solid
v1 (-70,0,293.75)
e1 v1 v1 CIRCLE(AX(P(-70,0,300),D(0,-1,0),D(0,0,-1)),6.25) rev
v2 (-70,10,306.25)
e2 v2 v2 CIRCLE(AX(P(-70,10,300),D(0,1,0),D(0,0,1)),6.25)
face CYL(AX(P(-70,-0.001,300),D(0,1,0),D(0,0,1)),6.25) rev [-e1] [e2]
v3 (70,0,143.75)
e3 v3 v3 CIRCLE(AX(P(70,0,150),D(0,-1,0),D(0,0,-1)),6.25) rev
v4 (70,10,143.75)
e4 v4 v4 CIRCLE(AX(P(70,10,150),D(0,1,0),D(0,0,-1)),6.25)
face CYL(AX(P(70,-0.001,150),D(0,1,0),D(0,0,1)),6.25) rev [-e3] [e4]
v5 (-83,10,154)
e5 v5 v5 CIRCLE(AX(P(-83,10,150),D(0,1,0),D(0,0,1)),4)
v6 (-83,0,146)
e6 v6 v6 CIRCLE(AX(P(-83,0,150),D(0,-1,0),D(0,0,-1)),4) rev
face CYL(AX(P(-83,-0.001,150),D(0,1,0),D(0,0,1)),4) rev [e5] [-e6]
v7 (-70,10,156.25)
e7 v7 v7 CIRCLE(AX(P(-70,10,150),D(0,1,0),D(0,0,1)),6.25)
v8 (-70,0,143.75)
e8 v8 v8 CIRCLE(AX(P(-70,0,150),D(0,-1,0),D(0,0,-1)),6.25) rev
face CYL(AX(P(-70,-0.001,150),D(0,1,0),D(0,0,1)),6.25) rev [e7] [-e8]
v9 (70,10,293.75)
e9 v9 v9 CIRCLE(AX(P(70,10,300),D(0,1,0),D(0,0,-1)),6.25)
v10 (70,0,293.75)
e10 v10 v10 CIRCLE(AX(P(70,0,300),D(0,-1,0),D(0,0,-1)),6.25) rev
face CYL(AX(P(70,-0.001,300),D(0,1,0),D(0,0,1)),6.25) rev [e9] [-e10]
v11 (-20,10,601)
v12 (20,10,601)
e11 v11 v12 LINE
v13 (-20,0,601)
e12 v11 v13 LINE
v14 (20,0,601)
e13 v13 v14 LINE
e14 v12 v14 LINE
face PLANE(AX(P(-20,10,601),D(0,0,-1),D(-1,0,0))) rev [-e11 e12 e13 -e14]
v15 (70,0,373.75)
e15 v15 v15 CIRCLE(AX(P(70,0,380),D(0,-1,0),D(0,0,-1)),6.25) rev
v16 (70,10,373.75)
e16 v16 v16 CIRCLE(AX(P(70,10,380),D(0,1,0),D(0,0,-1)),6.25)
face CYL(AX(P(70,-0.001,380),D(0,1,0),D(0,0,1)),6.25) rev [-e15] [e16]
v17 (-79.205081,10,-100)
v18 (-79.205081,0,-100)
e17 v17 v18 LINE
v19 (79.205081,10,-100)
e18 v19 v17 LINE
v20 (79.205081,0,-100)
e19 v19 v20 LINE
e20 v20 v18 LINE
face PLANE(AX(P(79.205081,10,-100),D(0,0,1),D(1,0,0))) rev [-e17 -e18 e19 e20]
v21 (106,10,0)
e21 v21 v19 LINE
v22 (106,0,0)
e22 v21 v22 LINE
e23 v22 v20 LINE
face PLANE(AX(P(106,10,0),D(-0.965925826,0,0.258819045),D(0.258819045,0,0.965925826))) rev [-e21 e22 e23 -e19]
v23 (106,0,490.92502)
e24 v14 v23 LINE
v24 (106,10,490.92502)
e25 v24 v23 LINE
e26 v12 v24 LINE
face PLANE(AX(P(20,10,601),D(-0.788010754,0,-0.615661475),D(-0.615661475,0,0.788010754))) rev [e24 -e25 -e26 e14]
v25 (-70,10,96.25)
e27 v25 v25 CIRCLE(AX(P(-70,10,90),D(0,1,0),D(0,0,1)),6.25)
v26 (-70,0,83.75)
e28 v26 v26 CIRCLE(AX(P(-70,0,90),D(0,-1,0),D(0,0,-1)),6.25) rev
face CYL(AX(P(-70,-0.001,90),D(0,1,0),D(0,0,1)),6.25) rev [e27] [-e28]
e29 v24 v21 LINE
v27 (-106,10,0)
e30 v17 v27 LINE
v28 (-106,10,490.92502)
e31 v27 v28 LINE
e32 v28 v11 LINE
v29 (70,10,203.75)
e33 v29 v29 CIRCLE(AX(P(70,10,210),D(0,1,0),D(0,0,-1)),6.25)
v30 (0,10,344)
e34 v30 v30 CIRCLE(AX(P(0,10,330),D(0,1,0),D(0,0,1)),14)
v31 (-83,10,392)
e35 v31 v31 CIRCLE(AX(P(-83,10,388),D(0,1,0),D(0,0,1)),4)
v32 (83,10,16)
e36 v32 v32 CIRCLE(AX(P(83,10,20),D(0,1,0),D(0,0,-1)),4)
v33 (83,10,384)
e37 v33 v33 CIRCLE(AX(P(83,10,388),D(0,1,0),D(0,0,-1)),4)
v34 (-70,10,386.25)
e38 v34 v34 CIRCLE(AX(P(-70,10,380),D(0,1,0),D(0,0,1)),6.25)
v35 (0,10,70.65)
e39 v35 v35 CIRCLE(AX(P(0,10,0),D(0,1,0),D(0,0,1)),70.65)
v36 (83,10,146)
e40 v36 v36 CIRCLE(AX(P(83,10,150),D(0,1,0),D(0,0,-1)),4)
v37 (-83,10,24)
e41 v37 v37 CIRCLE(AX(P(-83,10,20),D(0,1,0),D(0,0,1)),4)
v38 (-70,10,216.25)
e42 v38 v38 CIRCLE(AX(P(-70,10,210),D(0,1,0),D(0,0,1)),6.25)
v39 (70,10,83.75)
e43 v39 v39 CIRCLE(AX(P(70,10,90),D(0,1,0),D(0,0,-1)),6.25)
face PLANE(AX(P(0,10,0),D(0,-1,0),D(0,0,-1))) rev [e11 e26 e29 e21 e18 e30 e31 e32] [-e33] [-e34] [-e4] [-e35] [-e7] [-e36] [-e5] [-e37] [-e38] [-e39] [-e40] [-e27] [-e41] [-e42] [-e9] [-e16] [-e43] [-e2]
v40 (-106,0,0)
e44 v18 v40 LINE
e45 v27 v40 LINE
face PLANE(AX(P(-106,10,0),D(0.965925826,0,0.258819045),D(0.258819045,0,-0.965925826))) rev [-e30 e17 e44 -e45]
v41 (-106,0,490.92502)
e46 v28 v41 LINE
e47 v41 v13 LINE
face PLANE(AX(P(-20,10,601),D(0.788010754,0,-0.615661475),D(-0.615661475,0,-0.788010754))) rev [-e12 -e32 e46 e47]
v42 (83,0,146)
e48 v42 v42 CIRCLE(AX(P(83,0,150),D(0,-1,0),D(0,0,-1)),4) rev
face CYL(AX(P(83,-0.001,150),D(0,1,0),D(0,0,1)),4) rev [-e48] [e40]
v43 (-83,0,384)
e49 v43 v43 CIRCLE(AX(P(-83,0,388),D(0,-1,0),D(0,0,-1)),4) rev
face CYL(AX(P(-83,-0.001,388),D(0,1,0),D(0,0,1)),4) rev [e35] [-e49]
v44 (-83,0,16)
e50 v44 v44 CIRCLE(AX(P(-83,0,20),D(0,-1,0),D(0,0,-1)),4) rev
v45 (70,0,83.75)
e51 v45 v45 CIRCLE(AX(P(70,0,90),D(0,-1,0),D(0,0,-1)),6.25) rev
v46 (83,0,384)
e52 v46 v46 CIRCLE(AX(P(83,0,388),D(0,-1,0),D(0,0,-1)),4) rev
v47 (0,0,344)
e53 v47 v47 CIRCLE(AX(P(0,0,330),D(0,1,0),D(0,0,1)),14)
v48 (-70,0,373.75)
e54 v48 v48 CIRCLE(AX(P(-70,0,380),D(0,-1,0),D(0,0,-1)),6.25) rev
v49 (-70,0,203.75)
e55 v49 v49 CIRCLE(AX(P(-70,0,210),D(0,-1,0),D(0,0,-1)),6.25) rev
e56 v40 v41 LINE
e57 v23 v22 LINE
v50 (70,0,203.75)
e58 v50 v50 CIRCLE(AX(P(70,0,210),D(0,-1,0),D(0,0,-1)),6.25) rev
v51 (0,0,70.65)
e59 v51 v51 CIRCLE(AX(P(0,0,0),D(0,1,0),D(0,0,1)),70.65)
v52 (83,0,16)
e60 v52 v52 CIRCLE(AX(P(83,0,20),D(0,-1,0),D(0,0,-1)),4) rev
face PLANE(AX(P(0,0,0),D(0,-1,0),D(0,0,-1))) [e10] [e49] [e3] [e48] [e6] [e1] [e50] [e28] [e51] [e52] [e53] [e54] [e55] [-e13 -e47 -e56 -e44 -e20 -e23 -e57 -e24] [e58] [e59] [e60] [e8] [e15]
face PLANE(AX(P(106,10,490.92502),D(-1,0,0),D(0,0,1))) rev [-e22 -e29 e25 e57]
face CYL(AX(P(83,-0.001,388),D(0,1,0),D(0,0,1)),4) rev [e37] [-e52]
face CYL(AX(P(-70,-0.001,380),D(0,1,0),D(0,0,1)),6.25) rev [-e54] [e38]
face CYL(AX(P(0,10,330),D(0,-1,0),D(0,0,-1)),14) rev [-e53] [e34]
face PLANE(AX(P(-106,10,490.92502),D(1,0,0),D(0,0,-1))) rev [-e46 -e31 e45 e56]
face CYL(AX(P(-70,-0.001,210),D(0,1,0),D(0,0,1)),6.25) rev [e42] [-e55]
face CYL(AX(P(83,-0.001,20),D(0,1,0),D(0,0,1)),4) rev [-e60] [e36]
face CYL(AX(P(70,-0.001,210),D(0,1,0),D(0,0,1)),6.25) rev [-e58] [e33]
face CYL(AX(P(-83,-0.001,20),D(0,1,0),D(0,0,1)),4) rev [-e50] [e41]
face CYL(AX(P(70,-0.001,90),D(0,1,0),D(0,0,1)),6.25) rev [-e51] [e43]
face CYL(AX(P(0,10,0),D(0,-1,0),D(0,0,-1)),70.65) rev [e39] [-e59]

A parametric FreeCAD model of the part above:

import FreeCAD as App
import Part
import Sketcher

V = App.Vector
Q = App.Units.Quantity


def add_polygon(sketch, points):
    """Adds a closed chain of lines whose ends are joined by coincident constraints."""
    first, n = sketch.GeometryCount, len(points)
    for a, b in zip(points, points[1:] + points[:1]):
        sketch.addGeometry(Part.LineSegment(App.Vector(*a, 0), App.Vector(*b, 0)), False)
    for i in range(n):
        sketch.addConstraint(Sketcher.Constraint("Coincident", first + i, 2, first + (i + 1) % n, 1))

doc = App.newDocument("Part")
body = doc.addObject("PartDesign::Body", "Body")

# Sketch on XZ plane
sketch1 = body.newObject("Sketcher::SketchObject", "Sketch")
sketch1.AttachmentSupport = (doc.getObject("XZ_Plane"), [""])
sketch1.MapMode = "FlatFace"
add_polygon(sketch1, [(106, 490.92502), (106, 0), (79.205081, -100), (-79.205081, -100), (-106, 0), (-106, 490.92502), (-20, 601), (20, 601)])  # lines 0-7
sketch1.addGeometry(Part.Circle(V(0, 330, 0), V(0, 0, 1), 14), False)  # 8
sketch1.addGeometry(Part.Circle(V(0, 0, 0), V(0, 0, 1), 70.65), False)  # 9
sketch1.addConstraint(Sketcher.Constraint("Vertical", 0))
sketch1.addConstraint(Sketcher.Constraint("Horizontal", 2))
sketch1.addConstraint(Sketcher.Constraint("Vertical", 4))
sketch1.addConstraint(Sketcher.Constraint("Horizontal", 6))
sketch1.addConstraint(Sketcher.Constraint("Coincident", 9, 3, -1, 1))
sketch1.addConstraint(Sketcher.Constraint("Symmetric", 0, 2, 3, 2, -1, 1))
sketch1.addConstraint(Sketcher.Constraint("PointOnObject", 8, 3, -2))
sketch1.addConstraint(Sketcher.Constraint("PointOnObject", 0, 2, -1))
sketch1.addConstraint(Sketcher.Constraint("Horizontal", 4, 2, 7, 2))
sketch1.addConstraint(Sketcher.Constraint("Equal", 1, 3))
sketch1.addConstraint(Sketcher.Constraint("Equal", 5, 7))
sketch1.addConstraint(Sketcher.Constraint("Diameter", 8, 28.0))
sketch1.addConstraint(Sketcher.Constraint("Diameter", 9, 141.3))
sketch1.addConstraint(Sketcher.Constraint("DistanceX", 6, 1, 6, 2, 40.0))
sketch1.addConstraint(Sketcher.Constraint("Angle", 1, Q("-105 deg")))
sketch1.addConstraint(Sketcher.Constraint("Angle", 5, Q("52 deg")))
sketch1.addConstraint(Sketcher.Constraint("DistanceY", -1, 1, 8, 3, 330.0))
sketch1.addConstraint(Sketcher.Constraint("DistanceX", -1, 1, 0, 2, 106.0))
sketch1.addConstraint(Sketcher.Constraint("DistanceY", 1, 2, -1, 1, 100.0))
sketch1.addConstraint(Sketcher.Constraint("DistanceY", -1, 1, 5, 2, 601.0))
pad1 = body.newObject("PartDesign::Pad", "Pad")
pad1.Profile = sketch1
pad1.Length = 10
pad1.Reversed = True

# Sketch on XZ plane
sketch2 = body.newObject("Sketcher::SketchObject", "Sketch001")
sketch2.AttachmentSupport = (doc.getObject("XZ_Plane"), [""])
sketch2.MapMode = "FlatFace"
sketch2.AttachmentOffset = App.Placement(V(0, 0, -10), App.Rotation())
sketch2.addGeometry(Part.Circle(V(-83, 150, 0), V(0, 0, 1), 4), False)
sketch2.addConstraint(Sketcher.Constraint("Diameter", 0, 8.0))
sketch2.addConstraint(Sketcher.Constraint("DistanceX", 0, 3, -1, 1, 83.0))
sketch2.addConstraint(Sketcher.Constraint("DistanceY", -1, 1, 0, 3, 150.0))
pocket1 = body.newObject("PartDesign::Pocket", "Pocket")
pocket1.Profile = sketch2
pocket1.Type = "UpToFirst"
pocket1.Reversed = True

# Sketch on XZ plane
sketch3 = body.newObject("Sketcher::SketchObject", "Sketch002")
sketch3.AttachmentSupport = (doc.getObject("XZ_Plane"), [""])
sketch3.MapMode = "FlatFace"
sketch3.AttachmentOffset = App.Placement(V(0, 0, -10), App.Rotation())
sketch3.addGeometry(Part.Circle(V(-83, 388, 0), V(0, 0, 1), 4), False)
sketch3.addConstraint(Sketcher.Constraint("Diameter", 0, 8.0))
sketch3.addConstraint(Sketcher.Constraint("DistanceX", 0, 3, -1, 1, 83.0))
sketch3.addConstraint(Sketcher.Constraint("DistanceY", -1, 1, 0, 3, 388.0))
pocket2 = body.newObject("PartDesign::Pocket", "Pocket001")
pocket2.Profile = sketch3
pocket2.Type = "UpToFirst"
pocket2.Reversed = True

# Sketch on XZ plane
sketch4 = body.newObject("Sketcher::SketchObject", "Sketch003")
sketch4.AttachmentSupport = (doc.getObject("XZ_Plane"), [""])
sketch4.MapMode = "FlatFace"
sketch4.AttachmentOffset = App.Placement(V(0, 0, -10), App.Rotation())
sketch4.addGeometry(Part.Circle(V(83, 388, 0), V(0, 0, 1), 4), False)
sketch4.addConstraint(Sketcher.Constraint("Diameter", 0, 8.0))
sketch4.addConstraint(Sketcher.Constraint("DistanceX", -1, 1, 0, 3, 83.0))
sketch4.addConstraint(Sketcher.Constraint("DistanceY", -1, 1, 0, 3, 388.0))
pocket3 = body.newObject("PartDesign::Pocket", "Pocket002")
pocket3.Profile = sketch4
pocket3.Type = "UpToFirst"
pocket3.Reversed = True

# Sketch on XZ plane
sketch5 = body.newObject("Sketcher::SketchObject", "Sketch004")
sketch5.AttachmentSupport = (doc.getObject("XZ_Plane"), [""])
sketch5.MapMode = "FlatFace"
sketch5.AttachmentOffset = App.Placement(V(0, 0, -10), App.Rotation())
sketch5.addGeometry(Part.Circle(V(83, 150, 0), V(0, 0, 1), 4), False)
sketch5.addConstraint(Sketcher.Constraint("Diameter", 0, 8.0))
sketch5.addConstraint(Sketcher.Constraint("DistanceX", -1, 1, 0, 3, 83.0))
sketch5.addConstraint(Sketcher.Constraint("DistanceY", -1, 1, 0, 3, 150.0))
pocket4 = body.newObject("PartDesign::Pocket", "Pocket003")
pocket4.Profile = sketch5
pocket4.Type = "UpToFirst"
pocket4.Reversed = True

# Sketch on XZ plane
sketch6 = body.newObject("Sketcher::SketchObject", "Sketch005")
sketch6.AttachmentSupport = (doc.getObject("XZ_Plane"), [""])
sketch6.MapMode = "FlatFace"
sketch6.AttachmentOffset = App.Placement(V(0, 0, -10), App.Rotation())
sketch6.addGeometry(Part.Circle(V(-83, 20, 0), V(0, 0, 1), 4), False)
sketch6.addConstraint(Sketcher.Constraint("Diameter", 0, 8.0))
sketch6.addConstraint(Sketcher.Constraint("DistanceX", 0, 3, -1, 1, 83.0))
sketch6.addConstraint(Sketcher.Constraint("DistanceY", -1, 1, 0, 3, 20.0))
pocket5 = body.newObject("PartDesign::Pocket", "Pocket004")
pocket5.Profile = sketch6
pocket5.Type = "UpToFirst"
pocket5.Reversed = True

# Sketch on XZ plane
sketch7 = body.newObject("Sketcher::SketchObject", "Sketch006")
sketch7.AttachmentSupport = (doc.getObject("XZ_Plane"), [""])
sketch7.MapMode = "FlatFace"
sketch7.AttachmentOffset = App.Placement(V(0, 0, -10), App.Rotation())
sketch7.addGeometry(Part.Circle(V(83, 20, 0), V(0, 0, 1), 4), False)
sketch7.addConstraint(Sketcher.Constraint("Diameter", 0, 8.0))
sketch7.addConstraint(Sketcher.Constraint("DistanceX", -1, 1, 0, 3, 83.0))
sketch7.addConstraint(Sketcher.Constraint("DistanceY", -1, 1, 0, 3, 20.0))
pocket6 = body.newObject("PartDesign::Pocket", "Pocket005")
pocket6.Profile = sketch7
pocket6.Type = "UpToFirst"
pocket6.Reversed = True

# Sketch on XZ plane
sketch8 = body.newObject("Sketcher::SketchObject", "Sketch007")
sketch8.AttachmentSupport = (doc.getObject("XZ_Plane"), [""])
sketch8.MapMode = "FlatFace"
sketch8.AttachmentOffset = App.Placement(V(0, 0, -10), App.Rotation())
sketch8.addGeometry(Part.Circle(V(-70, 380, 0), V(0, 0, 1), 6.25), False)
sketch8.addConstraint(Sketcher.Constraint("Diameter", 0, 12.5))
sketch8.addConstraint(Sketcher.Constraint("DistanceX", 0, 3, -1, 1, 70.0))
sketch8.addConstraint(Sketcher.Constraint("DistanceY", -1, 1, 0, 3, 380.0))
pocket7 = body.newObject("PartDesign::Pocket", "Pocket006")
pocket7.Profile = sketch8
pocket7.Type = "UpToFirst"
pocket7.Reversed = True

# Sketch on XZ plane
sketch9 = body.newObject("Sketcher::SketchObject", "Sketch008")
sketch9.AttachmentSupport = (doc.getObject("XZ_Plane"), [""])
sketch9.MapMode = "FlatFace"
sketch9.AttachmentOffset = App.Placement(V(0, 0, -10), App.Rotation())
sketch9.addGeometry(Part.Circle(V(-70, 300, 0), V(0, 0, 1), 6.25), False)
sketch9.addConstraint(Sketcher.Constraint("Diameter", 0, 12.5))
sketch9.addConstraint(Sketcher.Constraint("DistanceX", 0, 3, -1, 1, 70.0))
sketch9.addConstraint(Sketcher.Constraint("DistanceY", -1, 1, 0, 3, 300.0))
pocket8 = body.newObject("PartDesign::Pocket", "Pocket007")
pocket8.Profile = sketch9
pocket8.Type = "UpToFirst"
pocket8.Reversed = True

# Sketch on XZ plane
sketch10 = body.newObject("Sketcher::SketchObject", "Sketch009")
sketch10.AttachmentSupport = (doc.getObject("XZ_Plane"), [""])
sketch10.MapMode = "FlatFace"
sketch10.AttachmentOffset = App.Placement(V(0, 0, -10), App.Rotation())
sketch10.addGeometry(Part.Circle(V(-70, 210, 0), V(0, 0, 1), 6.25), False)
sketch10.addConstraint(Sketcher.Constraint("Diameter", 0, 12.5))
sketch10.addConstraint(Sketcher.Constraint("DistanceX", 0, 3, -1, 1, 70.0))
sketch10.addConstraint(Sketcher.Constraint("DistanceY", -1, 1, 0, 3, 210.0))
pocket9 = body.newObject("PartDesign::Pocket", "Pocket008")
pocket9.Profile = sketch10
pocket9.Type = "UpToFirst"
pocket9.Reversed = True

# Sketch on XZ plane
sketch11 = body.newObject("Sketcher::SketchObject", "Sketch010")
sketch11.AttachmentSupport = (doc.getObject("XZ_Plane"), [""])
sketch11.MapMode = "FlatFace"
sketch11.AttachmentOffset = App.Placement(V(0, 0, -10), App.Rotation())
sketch11.addGeometry(Part.Circle(V(-70, 150, 0), V(0, 0, 1), 6.25), False)
sketch11.addConstraint(Sketcher.Constraint("Diameter", 0, 12.5))
sketch11.addConstraint(Sketcher.Constraint("DistanceX", 0, 3, -1, 1, 70.0))
sketch11.addConstraint(Sketcher.Constraint("DistanceY", -1, 1, 0, 3, 150.0))
pocket10 = body.newObject("PartDesign::Pocket", "Pocket009")
pocket10.Profile = sketch11
pocket10.Type = "UpToFirst"
pocket10.Reversed = True

# Sketch on XZ plane
sketch12 = body.newObject("Sketcher::SketchObject", "Sketch011")
sketch12.AttachmentSupport = (doc.getObject("XZ_Plane"), [""])
sketch12.MapMode = "FlatFace"
sketch12.AttachmentOffset = App.Placement(V(0, 0, -10), App.Rotation())
sketch12.addGeometry(Part.Circle(V(-70, 90, 0), V(0, 0, 1), 6.25), False)
sketch12.addConstraint(Sketcher.Constraint("Diameter", 0, 12.5))
sketch12.addConstraint(Sketcher.Constraint("DistanceX", 0, 3, -1, 1, 70.0))
sketch12.addConstraint(Sketcher.Constraint("DistanceY", -1, 1, 0, 3, 90.0))
pocket11 = body.newObject("PartDesign::Pocket", "Pocket010")
pocket11.Profile = sketch12
pocket11.Type = "UpToFirst"
pocket11.Reversed = True

# Sketch on XZ plane
sketch13 = body.newObject("Sketcher::SketchObject", "Sketch012")
sketch13.AttachmentSupport = (doc.getObject("XZ_Plane"), [""])
sketch13.MapMode = "FlatFace"
sketch13.AttachmentOffset = App.Placement(V(0, 0, -10), App.Rotation())
sketch13.addGeometry(Part.Circle(V(70, 90, 0), V(0, 0, 1), 6.25), False)
sketch13.addConstraint(Sketcher.Constraint("Diameter", 0, 12.5))
sketch13.addConstraint(Sketcher.Constraint("DistanceX", -1, 1, 0, 3, 70.0))
sketch13.addConstraint(Sketcher.Constraint("DistanceY", -1, 1, 0, 3, 90.0))
pocket12 = body.newObject("PartDesign::Pocket", "Pocket011")
pocket12.Profile = sketch13
pocket12.Type = "UpToFirst"
pocket12.Reversed = True

# Sketch on XZ plane
sketch14 = body.newObject("Sketcher::SketchObject", "Sketch013")
sketch14.AttachmentSupport = (doc.getObject("XZ_Plane"), [""])
sketch14.MapMode = "FlatFace"
sketch14.AttachmentOffset = App.Placement(V(0, 0, -10), App.Rotation())
sketch14.addGeometry(Part.Circle(V(70, 150, 0), V(0, 0, 1), 6.25), False)
sketch14.addConstraint(Sketcher.Constraint("Diameter", 0, 12.5))
sketch14.addConstraint(Sketcher.Constraint("DistanceX", -1, 1, 0, 3, 70.0))
sketch14.addConstraint(Sketcher.Constraint("DistanceY", -1, 1, 0, 3, 150.0))
pocket13 = body.newObject("PartDesign::Pocket", "Pocket012")
pocket13.Profile = sketch14
pocket13.Type = "UpToFirst"
pocket13.Reversed = True

# Sketch on XZ plane
sketch15 = body.newObject("Sketcher::SketchObject", "Sketch014")
sketch15.AttachmentSupport = (doc.getObject("XZ_Plane"), [""])
sketch15.MapMode = "FlatFace"
sketch15.AttachmentOffset = App.Placement(V(0, 0, -10), App.Rotation())
sketch15.addGeometry(Part.Circle(V(70, 210, 0), V(0, 0, 1), 6.25), False)
sketch15.addConstraint(Sketcher.Constraint("Diameter", 0, 12.5))
sketch15.addConstraint(Sketcher.Constraint("DistanceX", -1, 1, 0, 3, 70.0))
sketch15.addConstraint(Sketcher.Constraint("DistanceY", -1, 1, 0, 3, 210.0))
pocket14 = body.newObject("PartDesign::Pocket", "Pocket013")
pocket14.Profile = sketch15
pocket14.Type = "UpToFirst"
pocket14.Reversed = True

# Sketch on XZ plane
sketch16 = body.newObject("Sketcher::SketchObject", "Sketch015")
sketch16.AttachmentSupport = (doc.getObject("XZ_Plane"), [""])
sketch16.MapMode = "FlatFace"
sketch16.AttachmentOffset = App.Placement(V(0, 0, -10), App.Rotation())
sketch16.addGeometry(Part.Circle(V(70, 300, 0), V(0, 0, 1), 6.25), False)
sketch16.addConstraint(Sketcher.Constraint("Diameter", 0, 12.5))
sketch16.addConstraint(Sketcher.Constraint("DistanceX", -1, 1, 0, 3, 70.0))
sketch16.addConstraint(Sketcher.Constraint("DistanceY", -1, 1, 0, 3, 300.0))
pocket15 = body.newObject("PartDesign::Pocket", "Pocket014")
pocket15.Profile = sketch16
pocket15.Type = "UpToFirst"
pocket15.Reversed = True

# Sketch on XZ plane
sketch17 = body.newObject("Sketcher::SketchObject", "Sketch016")
sketch17.AttachmentSupport = (doc.getObject("XZ_Plane"), [""])
sketch17.MapMode = "FlatFace"
sketch17.AttachmentOffset = App.Placement(V(0, 0, -10), App.Rotation())
sketch17.addGeometry(Part.Circle(V(70, 380, 0), V(0, 0, 1), 6.25), False)
sketch17.addConstraint(Sketcher.Constraint("Diameter", 0, 12.5))
sketch17.addConstraint(Sketcher.Constraint("DistanceX", -1, 1, 0, 3, 70.0))
sketch17.addConstraint(Sketcher.Constraint("DistanceY", -1, 1, 0, 3, 380.0))
pocket16 = body.newObject("PartDesign::Pocket", "Pocket015")
pocket16.Profile = sketch17
pocket16.Type = "UpToFirst"
pocket16.Reversed = True

doc.recompute()
